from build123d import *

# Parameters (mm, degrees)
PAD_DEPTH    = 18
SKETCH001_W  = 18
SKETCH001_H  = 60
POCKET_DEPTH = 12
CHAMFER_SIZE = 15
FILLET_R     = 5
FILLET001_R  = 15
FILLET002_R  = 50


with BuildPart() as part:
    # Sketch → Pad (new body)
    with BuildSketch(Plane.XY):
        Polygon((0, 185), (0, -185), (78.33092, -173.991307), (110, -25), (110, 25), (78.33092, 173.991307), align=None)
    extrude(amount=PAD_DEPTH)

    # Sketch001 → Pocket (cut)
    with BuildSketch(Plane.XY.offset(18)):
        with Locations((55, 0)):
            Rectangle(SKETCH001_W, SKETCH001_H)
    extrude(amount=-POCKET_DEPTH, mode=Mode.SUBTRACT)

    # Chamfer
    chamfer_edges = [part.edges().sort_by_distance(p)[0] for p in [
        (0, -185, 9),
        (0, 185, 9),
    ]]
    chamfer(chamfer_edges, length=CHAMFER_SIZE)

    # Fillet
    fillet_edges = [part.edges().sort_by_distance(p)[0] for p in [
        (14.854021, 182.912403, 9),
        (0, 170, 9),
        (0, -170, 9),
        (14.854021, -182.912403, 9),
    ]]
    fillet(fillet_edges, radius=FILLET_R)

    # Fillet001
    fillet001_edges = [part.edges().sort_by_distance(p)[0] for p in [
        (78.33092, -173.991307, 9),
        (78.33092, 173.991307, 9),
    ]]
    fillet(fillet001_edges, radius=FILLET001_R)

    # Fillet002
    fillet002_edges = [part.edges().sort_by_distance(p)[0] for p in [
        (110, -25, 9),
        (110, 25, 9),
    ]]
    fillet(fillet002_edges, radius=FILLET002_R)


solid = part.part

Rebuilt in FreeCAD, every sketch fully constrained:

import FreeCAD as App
import Part
import Sketcher
from FreeCAD import Vector
Q = App.Units.Quantity


def edges_at(feature, points):
    """Names of the edges that pass closest to the given points."""
    edges = feature.Shape.Edges
    near = lambda p: min(range(len(edges)), key=lambda i: edges[i].distToShape(Part.Vertex(*p))[0])
    return sorted({f"Edge{near(p) + 1}" for p in points})


def add_polygon(sketch, points):
    """Adds a closed chain of lines whose ends are joined by coincident constraints."""
    first, n = sketch.GeometryCount, len(points)
    for a, b in zip(points, points[1:] + points[:1]):
        sketch.addGeometry(Part.LineSegment(App.Vector(*a, 0), App.Vector(*b, 0)), False)
    for i in range(n):
        sketch.addConstraint(Sketcher.Constraint("Coincident", first + i, 2, first + (i + 1) % n, 1))

doc = App.newDocument("Part")
body = doc.addObject("PartDesign::Body", "Body")

sketch1 = body.newObject("Sketcher::SketchObject", "Sketch")
sketch1.AttachmentSupport = (doc.getObject("XY_Plane"), [""])
sketch1.MapMode = "FlatFace"
add_polygon(sketch1, [(0, 185), (0, -185), (78, -174), (110, -25), (110, 25), (78, 174)])
sketch1.addConstraint([
    Sketcher.Constraint("Vertical", 0),
    Sketcher.Constraint("Vertical", 3),
    Sketcher.Constraint("Symmetric", 0, 2, 5, 2, -1, 1),
    Sketcher.Constraint("Symmetric", 1, 2, 4, 2, -1),
    Sketcher.Constraint("Equal", 2, 4),
    Sketcher.Constraint("DistanceY", 0, 2, 0, 1, Q("370 mm")),
    Sketcher.Constraint("DistanceY", 3, 1, 3, 2, Q("50 mm")),
    Sketcher.Constraint("Angle", 1, Q("8 deg")),
    Sketcher.Constraint("Angle", 2, Q("78 deg")),
    Sketcher.Constraint("DistanceX", -1, 1, 2, 2, Q("110 mm")),
])
pad1 = body.newObject("PartDesign::Pad", "Pad")
pad1.Profile = sketch1
pad1.Length = 18

sketch2 = body.newObject("Sketcher::SketchObject", "Sketch001")
sketch2.AttachmentSupport = (doc.getObject("XY_Plane"), [""])
sketch2.MapMode = "FlatFace"
sketch2.AttachmentOffset = App.Placement(Vector(0, 0, 18), App.Rotation())
add_polygon(sketch2, [(46, 30), (46, -30), (64, -30), (64, 30)])
sketch2.addConstraint([
    Sketcher.Constraint("Vertical", 0),
    Sketcher.Constraint("Horizontal", 1),
    Sketcher.Constraint("Vertical", 2),
    Sketcher.Constraint("Horizontal", 3),
    Sketcher.Constraint("DistanceX", 1, 1, 1, 2, Q("18 mm")),
    Sketcher.Constraint("DistanceY", 0, 2, 0, 1, Q("60 mm")),
    Sketcher.Constraint("DistanceX", -1, 1, 0, 2, Q("46 mm")),
    Sketcher.Constraint("DistanceY", 0, 2, -1, 1, Q("30 mm")),
])
pocket1 = body.newObject("PartDesign::Pocket", "Pocket")
pocket1.Profile = sketch2
pocket1.Length = 12
doc.recompute()

chamfer = body.newObject("PartDesign::Chamfer", "Chamfer")
chamfer.Base = (pocket1, edges_at(pocket1, [(0, -185, 9), (0, 185, 9)]))
chamfer.Size = 15
doc.recompute()

fillet = body.newObject("PartDesign::Fillet", "Fillet")
fillet.Base = (chamfer, edges_at(chamfer, [
    (14.854, 182.912, 9),
    (0, 170, 9),
    (0, -170, 9),
    (14.854, -182.912, 9),
]))
fillet.Radius = 5
doc.recompute()

fillet2 = body.newObject("PartDesign::Fillet", "Fillet001")
fillet2.Base = (fillet, edges_at(fillet, [(78.331, -173.991, 9), (78.331, 173.991, 9)]))
fillet2.Radius = 15
doc.recompute()

fillet3 = body.newObject("PartDesign::Fillet", "Fillet002")
fillet3.Base = (fillet2, edges_at(fillet2, [(110, -25, 9), (110, 25, 9)]))
fillet3.Radius = 50

doc.recompute()
